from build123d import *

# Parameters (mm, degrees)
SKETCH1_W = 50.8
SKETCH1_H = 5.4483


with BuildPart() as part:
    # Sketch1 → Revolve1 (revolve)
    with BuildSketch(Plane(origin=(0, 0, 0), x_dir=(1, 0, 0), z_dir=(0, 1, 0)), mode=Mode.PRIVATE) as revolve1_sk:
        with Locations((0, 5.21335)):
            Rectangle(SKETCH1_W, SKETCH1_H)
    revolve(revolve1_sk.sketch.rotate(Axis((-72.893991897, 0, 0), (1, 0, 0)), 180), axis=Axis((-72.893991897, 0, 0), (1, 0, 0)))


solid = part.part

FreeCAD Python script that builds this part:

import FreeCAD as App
import Part
import Sketcher
from FreeCAD import Vector
Q = App.Units.Quantity


def add_polygon(sketch, points):
    """Adds a closed chain of lines whose ends are joined by coincident constraints."""
    first, n = sketch.GeometryCount, len(points)
    for a, b in zip(points, points[1:] + points[:1]):
        sketch.addGeometry(Part.LineSegment(App.Vector(*a, 0), App.Vector(*b, 0)), False)
    for i in range(n):
        sketch.addConstraint(Sketcher.Constraint("Coincident", first + i, 2, first + (i + 1) % n, 1))

doc = App.newDocument("Part")
body = doc.addObject("PartDesign::Body", "Body")

sketch1 = body.newObject("Sketcher::SketchObject", "Sketch")
sketch1.AttachmentSupport = (doc.getObject("XZ_Plane"), [""])
sketch1.MapMode = "FlatFace"
add_polygon(sketch1, [(-25, -8), (-25, -2), (25, -2), (25, -8)])
sketch1.addConstraint(Sketcher.Constraint("Vertical", 0))
sketch1.addConstraint(Sketcher.Constraint("Horizontal", 1))
sketch1.addConstraint(Sketcher.Constraint("Vertical", 2))
sketch1.addConstraint(Sketcher.Constraint("Horizontal", 3))
sketch1.addConstraint(Sketcher.Constraint("DistanceX", 1, 1, 1, 2, Q("2 in")))
sketch1.addConstraint(Sketcher.Constraint("DistanceX", 0, 2, -1, 1, Q("1 in")))
sketch1.addConstraint(Sketcher.Constraint("DistanceY", 0, 1, 0, 2, Q("0.2145 in")))
sketch1.addConstraint(Sketcher.Constraint("DistanceY", 0, 2, -1, 1, Q("0.098 in")))
revolution = body.newObject("PartDesign::Revolution", "Revolution")
revolution.Profile = sketch1
revolution.ReferenceAxis = (sketch1, ["H_Axis"])
revolution.Angle = 360

doc.recompute()
